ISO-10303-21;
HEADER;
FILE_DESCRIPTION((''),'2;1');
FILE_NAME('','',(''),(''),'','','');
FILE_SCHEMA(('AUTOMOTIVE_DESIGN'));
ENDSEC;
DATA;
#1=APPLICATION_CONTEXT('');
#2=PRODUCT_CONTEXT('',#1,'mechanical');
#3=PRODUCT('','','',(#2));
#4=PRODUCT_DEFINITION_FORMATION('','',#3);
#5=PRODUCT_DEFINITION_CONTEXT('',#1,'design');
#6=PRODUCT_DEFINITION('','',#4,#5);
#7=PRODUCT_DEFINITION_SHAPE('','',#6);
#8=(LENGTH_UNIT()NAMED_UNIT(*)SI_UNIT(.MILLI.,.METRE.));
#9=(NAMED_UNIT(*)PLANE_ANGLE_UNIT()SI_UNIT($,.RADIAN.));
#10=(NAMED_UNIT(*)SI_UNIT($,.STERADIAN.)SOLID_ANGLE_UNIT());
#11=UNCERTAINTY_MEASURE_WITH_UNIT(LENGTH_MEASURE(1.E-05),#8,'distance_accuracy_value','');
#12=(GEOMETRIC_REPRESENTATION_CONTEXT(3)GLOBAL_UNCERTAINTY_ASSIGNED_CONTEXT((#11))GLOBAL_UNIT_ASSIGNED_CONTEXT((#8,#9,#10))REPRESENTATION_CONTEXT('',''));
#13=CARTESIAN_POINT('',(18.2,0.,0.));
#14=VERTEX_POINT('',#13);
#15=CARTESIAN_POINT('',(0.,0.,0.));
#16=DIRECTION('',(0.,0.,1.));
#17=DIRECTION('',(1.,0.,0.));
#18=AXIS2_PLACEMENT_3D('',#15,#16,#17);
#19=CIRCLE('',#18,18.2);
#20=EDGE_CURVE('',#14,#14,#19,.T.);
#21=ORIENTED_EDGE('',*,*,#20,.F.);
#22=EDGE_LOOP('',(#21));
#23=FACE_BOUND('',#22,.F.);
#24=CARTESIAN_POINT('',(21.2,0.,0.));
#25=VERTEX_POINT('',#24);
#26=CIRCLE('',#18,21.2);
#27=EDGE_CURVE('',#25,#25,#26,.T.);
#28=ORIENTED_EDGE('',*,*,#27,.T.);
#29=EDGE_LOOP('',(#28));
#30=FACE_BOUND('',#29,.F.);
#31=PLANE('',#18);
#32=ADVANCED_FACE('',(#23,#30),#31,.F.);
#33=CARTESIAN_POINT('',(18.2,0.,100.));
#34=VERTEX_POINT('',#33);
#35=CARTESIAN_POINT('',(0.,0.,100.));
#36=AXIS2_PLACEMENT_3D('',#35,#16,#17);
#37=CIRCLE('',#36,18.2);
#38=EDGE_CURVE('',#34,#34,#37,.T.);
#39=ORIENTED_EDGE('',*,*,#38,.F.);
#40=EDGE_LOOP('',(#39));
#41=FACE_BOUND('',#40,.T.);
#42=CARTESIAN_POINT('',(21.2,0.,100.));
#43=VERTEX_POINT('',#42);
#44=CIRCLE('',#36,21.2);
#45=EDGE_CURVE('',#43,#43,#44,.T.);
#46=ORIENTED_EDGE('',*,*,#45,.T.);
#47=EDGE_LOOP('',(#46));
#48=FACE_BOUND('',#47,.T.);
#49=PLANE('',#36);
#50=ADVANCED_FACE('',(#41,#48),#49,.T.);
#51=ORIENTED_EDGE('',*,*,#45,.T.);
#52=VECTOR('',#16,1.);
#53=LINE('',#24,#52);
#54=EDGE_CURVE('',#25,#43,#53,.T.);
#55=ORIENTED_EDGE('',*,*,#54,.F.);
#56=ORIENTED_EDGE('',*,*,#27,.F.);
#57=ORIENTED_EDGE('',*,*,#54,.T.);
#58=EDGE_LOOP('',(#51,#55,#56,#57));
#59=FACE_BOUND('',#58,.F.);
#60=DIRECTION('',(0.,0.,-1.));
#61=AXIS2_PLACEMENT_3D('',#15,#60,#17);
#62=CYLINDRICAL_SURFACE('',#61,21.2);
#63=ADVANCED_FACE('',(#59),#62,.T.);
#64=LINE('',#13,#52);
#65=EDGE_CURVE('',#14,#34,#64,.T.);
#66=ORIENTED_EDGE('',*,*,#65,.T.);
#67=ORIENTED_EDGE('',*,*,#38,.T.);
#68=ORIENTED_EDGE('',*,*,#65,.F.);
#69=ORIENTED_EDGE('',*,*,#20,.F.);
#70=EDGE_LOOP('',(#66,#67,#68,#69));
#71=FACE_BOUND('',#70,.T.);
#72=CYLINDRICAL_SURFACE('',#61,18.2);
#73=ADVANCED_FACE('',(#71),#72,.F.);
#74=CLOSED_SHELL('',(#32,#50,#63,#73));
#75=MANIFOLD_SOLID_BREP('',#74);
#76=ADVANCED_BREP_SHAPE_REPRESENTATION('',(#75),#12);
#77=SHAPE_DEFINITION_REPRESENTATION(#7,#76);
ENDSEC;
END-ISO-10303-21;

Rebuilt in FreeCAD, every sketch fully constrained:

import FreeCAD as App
import Part
import Sketcher

V = App.Vector
Q = App.Units.Quantity

doc = App.newDocument("Part")
body = doc.addObject("PartDesign::Body", "Body")

sketch1 = body.newObject("Sketcher::SketchObject", "Sketch")
sketch1.AttachmentSupport = (doc.getObject("XY_Plane"), [""])
sketch1.MapMode = "FlatFace"
sketch1.addGeometry(Part.Circle(V(0, 0, 0), V(0, 0, 1), 21), False)
sketch1.addGeometry(Part.Circle(V(0, 0, 0), V(0, 0, 1), 18), False)
sketch1.addConstraint(Sketcher.Constraint("Coincident", 0, 3, -1, 1))
sketch1.addConstraint(Sketcher.Constraint("Coincident", 1, 3, -1, 1))
sketch1.addConstraint(Sketcher.Constraint("Diameter", 0, Q("42.4 mm")))
sketch1.addConstraint(Sketcher.Constraint("Diameter", 1, Q("36.4 mm")))
pad1 = body.newObject("PartDesign::Pad", "Pad")
pad1.Profile = sketch1
pad1.Length = 100

doc.recompute()
